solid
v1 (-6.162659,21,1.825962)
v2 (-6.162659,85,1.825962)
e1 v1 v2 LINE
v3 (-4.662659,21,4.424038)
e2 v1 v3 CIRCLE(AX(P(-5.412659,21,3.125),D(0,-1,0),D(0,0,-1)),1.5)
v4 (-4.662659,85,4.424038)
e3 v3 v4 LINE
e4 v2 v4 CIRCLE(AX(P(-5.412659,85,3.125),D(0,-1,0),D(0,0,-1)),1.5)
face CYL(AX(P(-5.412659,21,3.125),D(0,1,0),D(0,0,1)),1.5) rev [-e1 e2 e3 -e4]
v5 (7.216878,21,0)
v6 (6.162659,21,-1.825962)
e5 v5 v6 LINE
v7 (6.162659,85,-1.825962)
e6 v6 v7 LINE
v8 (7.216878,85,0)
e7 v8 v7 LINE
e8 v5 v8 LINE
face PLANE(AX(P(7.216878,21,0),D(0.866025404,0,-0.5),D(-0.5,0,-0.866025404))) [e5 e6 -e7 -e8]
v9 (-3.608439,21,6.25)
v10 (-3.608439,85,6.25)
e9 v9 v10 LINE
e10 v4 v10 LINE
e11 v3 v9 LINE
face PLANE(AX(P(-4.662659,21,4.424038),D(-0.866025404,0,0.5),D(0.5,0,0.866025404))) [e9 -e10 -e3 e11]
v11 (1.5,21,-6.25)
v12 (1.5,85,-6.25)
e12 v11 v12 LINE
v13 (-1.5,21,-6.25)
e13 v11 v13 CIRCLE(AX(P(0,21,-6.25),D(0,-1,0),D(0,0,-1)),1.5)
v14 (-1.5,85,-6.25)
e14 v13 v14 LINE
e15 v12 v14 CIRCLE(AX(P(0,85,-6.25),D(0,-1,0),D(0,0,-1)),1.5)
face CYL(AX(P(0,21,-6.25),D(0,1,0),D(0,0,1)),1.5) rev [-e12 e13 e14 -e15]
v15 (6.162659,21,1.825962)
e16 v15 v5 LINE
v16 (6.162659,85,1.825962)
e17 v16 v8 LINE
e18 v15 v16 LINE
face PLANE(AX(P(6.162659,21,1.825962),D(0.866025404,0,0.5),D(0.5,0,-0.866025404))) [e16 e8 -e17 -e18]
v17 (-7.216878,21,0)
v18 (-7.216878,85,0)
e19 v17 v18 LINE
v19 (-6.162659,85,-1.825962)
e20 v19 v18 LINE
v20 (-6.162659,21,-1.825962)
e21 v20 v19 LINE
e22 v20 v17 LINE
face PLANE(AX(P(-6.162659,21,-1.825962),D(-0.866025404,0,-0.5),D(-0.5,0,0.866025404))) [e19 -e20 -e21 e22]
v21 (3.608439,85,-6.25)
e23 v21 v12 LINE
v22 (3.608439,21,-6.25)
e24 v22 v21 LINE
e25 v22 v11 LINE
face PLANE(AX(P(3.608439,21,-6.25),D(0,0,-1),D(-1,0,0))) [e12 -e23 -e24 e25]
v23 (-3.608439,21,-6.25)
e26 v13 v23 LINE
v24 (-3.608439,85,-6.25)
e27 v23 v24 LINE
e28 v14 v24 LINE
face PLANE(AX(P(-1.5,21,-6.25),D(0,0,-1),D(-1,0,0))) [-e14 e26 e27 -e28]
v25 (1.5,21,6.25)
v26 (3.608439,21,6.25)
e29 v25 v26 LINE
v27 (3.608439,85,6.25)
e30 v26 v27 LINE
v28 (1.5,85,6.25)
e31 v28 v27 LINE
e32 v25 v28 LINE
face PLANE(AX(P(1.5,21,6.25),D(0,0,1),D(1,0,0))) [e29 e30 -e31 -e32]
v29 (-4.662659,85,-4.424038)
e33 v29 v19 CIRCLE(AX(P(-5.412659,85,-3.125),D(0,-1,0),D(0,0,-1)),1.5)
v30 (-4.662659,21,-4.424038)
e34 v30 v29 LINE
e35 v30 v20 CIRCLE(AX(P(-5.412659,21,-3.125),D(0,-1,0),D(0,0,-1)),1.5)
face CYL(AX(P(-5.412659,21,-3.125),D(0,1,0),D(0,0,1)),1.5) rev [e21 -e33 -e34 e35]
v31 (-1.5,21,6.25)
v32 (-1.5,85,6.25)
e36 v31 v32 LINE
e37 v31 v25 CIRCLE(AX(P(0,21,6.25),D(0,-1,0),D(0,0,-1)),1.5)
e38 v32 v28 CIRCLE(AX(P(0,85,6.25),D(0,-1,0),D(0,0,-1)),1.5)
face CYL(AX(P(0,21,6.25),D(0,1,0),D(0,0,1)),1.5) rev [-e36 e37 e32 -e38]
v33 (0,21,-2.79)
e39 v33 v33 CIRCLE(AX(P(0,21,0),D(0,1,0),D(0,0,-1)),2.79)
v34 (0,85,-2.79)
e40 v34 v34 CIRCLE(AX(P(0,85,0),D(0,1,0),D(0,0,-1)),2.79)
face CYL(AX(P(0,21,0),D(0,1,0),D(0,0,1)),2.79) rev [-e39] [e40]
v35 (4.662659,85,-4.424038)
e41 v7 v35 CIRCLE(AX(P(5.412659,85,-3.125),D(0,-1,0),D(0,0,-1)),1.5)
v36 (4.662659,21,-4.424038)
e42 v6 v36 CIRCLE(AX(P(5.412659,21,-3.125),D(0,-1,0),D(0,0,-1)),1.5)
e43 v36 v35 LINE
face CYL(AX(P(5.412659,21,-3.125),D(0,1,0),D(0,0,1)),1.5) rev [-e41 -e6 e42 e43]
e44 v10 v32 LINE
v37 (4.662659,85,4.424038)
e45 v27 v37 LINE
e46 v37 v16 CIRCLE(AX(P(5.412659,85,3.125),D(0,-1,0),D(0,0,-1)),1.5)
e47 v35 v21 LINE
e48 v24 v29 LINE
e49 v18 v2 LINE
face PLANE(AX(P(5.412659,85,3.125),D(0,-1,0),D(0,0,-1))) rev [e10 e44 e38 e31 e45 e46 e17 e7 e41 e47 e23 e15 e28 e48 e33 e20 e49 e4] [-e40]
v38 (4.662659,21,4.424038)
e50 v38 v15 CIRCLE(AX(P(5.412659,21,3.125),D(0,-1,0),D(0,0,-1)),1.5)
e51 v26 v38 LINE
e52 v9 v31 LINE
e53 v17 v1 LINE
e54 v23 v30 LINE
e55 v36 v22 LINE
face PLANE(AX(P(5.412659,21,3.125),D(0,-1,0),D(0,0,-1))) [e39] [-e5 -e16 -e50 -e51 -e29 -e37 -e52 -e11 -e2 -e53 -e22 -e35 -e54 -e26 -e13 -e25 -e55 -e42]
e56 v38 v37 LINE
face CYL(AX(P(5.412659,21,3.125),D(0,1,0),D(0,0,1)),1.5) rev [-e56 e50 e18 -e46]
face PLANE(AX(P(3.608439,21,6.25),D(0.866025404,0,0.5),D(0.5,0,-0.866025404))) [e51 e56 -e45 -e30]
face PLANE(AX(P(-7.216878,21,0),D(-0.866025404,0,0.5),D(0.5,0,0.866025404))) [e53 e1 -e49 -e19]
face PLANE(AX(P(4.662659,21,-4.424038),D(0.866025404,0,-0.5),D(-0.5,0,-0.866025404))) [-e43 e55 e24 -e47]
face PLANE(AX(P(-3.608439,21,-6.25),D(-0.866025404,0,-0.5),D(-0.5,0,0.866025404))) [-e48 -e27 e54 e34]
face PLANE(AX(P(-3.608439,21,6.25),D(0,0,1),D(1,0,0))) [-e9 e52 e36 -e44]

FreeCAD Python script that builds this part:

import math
import FreeCAD as App
import Part
import Sketcher
from FreeCAD import Vector
Q = App.Units.Quantity

doc = App.newDocument("Part")
params = doc.addObject("Spreadsheet::Sheet", "Params")
for row, (alias, value) in enumerate([
    ("sketch1_radius", "1.5 mm"),
    ("sketch1_diameter", "5.58 mm"),
    ("pad1_length", "64 mm"),
], start=1):
    params.set(f"A{row}", alias)
    params.set(f"B{row}", "=" + value)
    params.setAlias(f"B{row}", alias)

body = doc.addObject("PartDesign::Body", "Body")

# Sketch on XZ plane
sketch1 = doc.addObject("Sketcher::SketchObject", "Sketch")
body.addObject(sketch1)
sketch1.AttachmentSupport = (doc.XZ_Plane, [""])
sketch1.MapMode = "FlatFace"
sketch1.AttachmentOffset = App.Placement(Vector(0, 0, -85), App.Rotation())
sketch1.addGeometry([
    Part.LineSegment(Vector(6.162659, 1.825962, 0), Vector(7.216878, 0, 0)),  # 0
    Part.LineSegment(Vector(7.216878, 0, 0), Vector(6.162659, -1.825962, 0)),  # 1
    Part.ArcOfCircle(Part.Circle(Vector(5.412659, -3.125, 0), Vector(0, 0, 1), 1.5), math.radians(60), math.radians(240)),  # 2
    Part.LineSegment(Vector(4.662659, -4.424038, 0), Vector(3.608439, -6.25, 0)),  # 3
    Part.LineSegment(Vector(3.608439, -6.25, 0), Vector(1.5, -6.25, 0)),  # 4
    Part.ArcOfCircle(Part.Circle(Vector(0, -6.25, 0), Vector(0, 0, 1), 1.5), math.radians(0), math.radians(180)),  # 5
    Part.LineSegment(Vector(-1.5, -6.25, 0), Vector(-3.608439, -6.25, 0)),  # 6
    Part.LineSegment(Vector(-3.608439, -6.25, 0), Vector(-4.662659, -4.424038, 0)),  # 7
    Part.ArcOfCircle(Part.Circle(Vector(-5.412659, -3.125, 0), Vector(0, 0, 1), 1.5), math.radians(-60), math.radians(120)),  # 8
    Part.LineSegment(Vector(-6.162659, -1.825962, 0), Vector(-7.216878, 0, 0)),  # 9
    Part.LineSegment(Vector(-7.216878, 0, 0), Vector(-6.162659, 1.825962, 0)),  # 10
    Part.ArcOfCircle(Part.Circle(Vector(-5.412659, 3.125, 0), Vector(0, 0, 1), 1.5), math.radians(-120), math.radians(60)),  # 11
    Part.LineSegment(Vector(-4.662659, 4.424038, 0), Vector(-3.608439, 6.25, 0)),  # 12
    Part.LineSegment(Vector(-3.608439, 6.25, 0), Vector(-1.5, 6.25, 0)),  # 13
    Part.ArcOfCircle(Part.Circle(Vector(0, 6.25, 0), Vector(0, 0, 1), 1.5), math.radians(180), math.radians(360)),  # 14
    Part.LineSegment(Vector(1.5, 6.25, 0), Vector(3.608439, 6.25, 0)),  # 15
    Part.LineSegment(Vector(3.608439, 6.25, 0), Vector(4.662659, 4.424038, 0)),  # 16
    Part.ArcOfCircle(Part.Circle(Vector(5.412659, 3.125, 0), Vector(0, 0, 1), 1.5), math.radians(120), math.radians(300)),  # 17
    Part.Circle(Vector(0, 0, 0), Vector(0, 0, 1), 2.79),  # 18
], False)
sketch1.addConstraint([
    Sketcher.Constraint("Coincident", 0, 2, 1, 1),
    Sketcher.Constraint("Coincident", 1, 2, 2, 1),
    Sketcher.Constraint("Coincident", 2, 2, 3, 1),
    Sketcher.Constraint("Coincident", 3, 2, 4, 1),
    Sketcher.Constraint("Coincident", 4, 2, 5, 1),
    Sketcher.Constraint("Coincident", 5, 2, 6, 1),
    Sketcher.Constraint("Coincident", 6, 2, 7, 1),
    Sketcher.Constraint("Coincident", 7, 2, 8, 1),
    Sketcher.Constraint("Coincident", 8, 2, 9, 1),
    Sketcher.Constraint("Coincident", 9, 2, 10, 1),
    Sketcher.Constraint("Coincident", 10, 2, 11, 1),
    Sketcher.Constraint("Coincident", 11, 2, 12, 1),
    Sketcher.Constraint("Coincident", 12, 2, 13, 1),
    Sketcher.Constraint("Coincident", 13, 2, 14, 1),
    Sketcher.Constraint("Coincident", 14, 2, 15, 1),
    Sketcher.Constraint("Coincident", 15, 2, 16, 1),
    Sketcher.Constraint("Coincident", 16, 2, 17, 1),
    Sketcher.Constraint("Coincident", 17, 2, 0, 1),
    Sketcher.Constraint("Horizontal", 4),
    Sketcher.Constraint("Horizontal", 6),
    Sketcher.Constraint("Horizontal", 13),
    Sketcher.Constraint("Horizontal", 15),
    Sketcher.Constraint("Coincident", 18, 3, -1, 1),
    Sketcher.Constraint("Equal", 2, 5),
    Sketcher.Constraint("Equal", 5, 8),
    Sketcher.Constraint("Equal", 8, 11),
    Sketcher.Constraint("Equal", 11, 14),
    Sketcher.Constraint("Equal", 14, 17),
    Sketcher.Constraint("Symmetric", 2, 3, 11, 3, -1, 1),
    Sketcher.Constraint("Symmetric", 5, 3, 14, 3, -1, 1),
    Sketcher.Constraint("Symmetric", 8, 3, 17, 3, -1, 1),
    Sketcher.Constraint("Symmetric", 0, 2, 9, 2, -1, 1),
    Sketcher.Constraint("Symmetric", 3, 2, 12, 2, -1, 1),
    Sketcher.Constraint("Symmetric", 6, 2, 15, 2, -1, 1),
    Sketcher.Constraint("Symmetric", 2, 3, 8, 3, -2),
    Sketcher.Constraint("Symmetric", 4, 2, 5, 2, -2),
    Sketcher.Constraint("PointOnObject", 0, 2, -1),
    Sketcher.Constraint("Parallel", 1, 3),
    Sketcher.Constraint("Parallel", 0, 7),
    Sketcher.Constraint("Parallel", 7, 9),
    Sketcher.Constraint("Parallel", 3, 10),
    Sketcher.Constraint("Parallel", 10, 12),
    Sketcher.Constraint("Parallel", 9, 16),
    Sketcher.Constraint("Horizontal", 5, 3, 3, 2),
    Sketcher.Constraint("Horizontal", 2, 2, 7, 2),
    Sketcher.Constraint("Horizontal", 1, 2, 8, 2),
    Sketcher.Constraint("Equal", 1, 3),
    Sketcher.Constraint("Radius", 2, 1.5),
    Sketcher.Constraint("Diameter", 18, 5.58),
    Sketcher.Constraint("Angle", 0, Q("-60 deg")),
    Sketcher.Constraint("DistanceY", 5, 3, 14, 3, 12.5),
    Sketcher.Constraint("DistanceX", 2, 2, 1, 2, 1.5),
    Sketcher.Constraint("DistanceY", 8, 3, 11, 3, 6.25),
    Sketcher.Constraint("DistanceX", 4, 2, 4, 1, 2.108439),
])
sketch1.setExpression("Constraints[47]", "Params.sketch1_radius")
sketch1.setExpression("Constraints[48]", "Params.sketch1_diameter")
pad1 = doc.addObject("PartDesign::Pad", "Pad")
body.addObject(pad1)
pad1.Profile = sketch1
pad1.setExpression("Length", "Params.pad1_length")

doc.recompute()
